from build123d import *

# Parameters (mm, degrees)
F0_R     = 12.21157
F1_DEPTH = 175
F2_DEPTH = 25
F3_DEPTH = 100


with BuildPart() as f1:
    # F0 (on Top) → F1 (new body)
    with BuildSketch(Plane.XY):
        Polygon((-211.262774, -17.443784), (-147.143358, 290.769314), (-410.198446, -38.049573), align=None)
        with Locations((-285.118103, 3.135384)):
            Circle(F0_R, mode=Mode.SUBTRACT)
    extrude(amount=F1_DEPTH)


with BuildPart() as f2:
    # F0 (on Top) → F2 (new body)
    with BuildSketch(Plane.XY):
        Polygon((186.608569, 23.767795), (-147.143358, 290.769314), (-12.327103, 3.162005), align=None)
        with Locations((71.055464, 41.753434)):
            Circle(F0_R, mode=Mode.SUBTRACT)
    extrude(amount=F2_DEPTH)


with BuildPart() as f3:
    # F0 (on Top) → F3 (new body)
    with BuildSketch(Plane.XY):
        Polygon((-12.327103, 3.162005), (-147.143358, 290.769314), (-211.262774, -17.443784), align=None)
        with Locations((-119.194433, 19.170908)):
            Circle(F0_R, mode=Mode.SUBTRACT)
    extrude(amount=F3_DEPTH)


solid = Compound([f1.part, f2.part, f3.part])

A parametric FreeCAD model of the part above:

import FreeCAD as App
import Part
import Sketcher
from FreeCAD import Vector
Q = App.Units.Quantity

doc = App.newDocument("Part")
body = doc.addObject("PartDesign::Body", "Body")

sketch1 = body.newObject("Sketcher::SketchObject", "Sketch")
sketch1.AttachmentSupport = (doc.getObject("XY_Plane"), [""])
sketch1.MapMode = "FlatFace"
sketch1.addGeometry(Part.LineSegment(Vector(-211.262774, -17.443784, 0), Vector(-147.143358, 290.769314, 0)), False)
sketch1.addGeometry(Part.LineSegment(Vector(-147.143358, 290.769314, 0), Vector(-410.198446, -38.049573, 0)), False)
sketch1.addGeometry(Part.LineSegment(Vector(-410.198446, -38.049573, 0), Vector(-211.262774, -17.443784, 0)), False)
sketch1.addGeometry(Part.Circle(Vector(-285.118103, 3.135384, 0), Vector(0, 0, 1), 12.21157), False)
sketch1.addConstraint(Sketcher.Constraint("Coincident", 0, 2, 1, 1))
sketch1.addConstraint(Sketcher.Constraint("Coincident", 1, 2, 2, 1))
sketch1.addConstraint(Sketcher.Constraint("Coincident", 2, 2, 0, 1))
sketch1.addConstraint(Sketcher.Constraint("Distance", 2, Q("200 mm")))
sketch1.addConstraint(Sketcher.Constraint("Diameter", 3, Q("24.42314 mm")))
sketch1.addConstraint(Sketcher.Constraint("DistanceY", 2, 2, 0, 2, Q("308.213098 mm")))
sketch1.addConstraint(Sketcher.Constraint("Distance", 0, Q("314.812028 mm")))
sketch1.addConstraint(Sketcher.Constraint("DistanceX", 0, 2, -1, 1, Q("147.143358 mm")))
sketch1.addConstraint(Sketcher.Constraint("DistanceY", 3, 3, 0, 2, Q("287.63393 mm")))
sketch1.addConstraint(Sketcher.Constraint("DistanceX", 3, 3, 2, 2, Q("73.855329 mm")))
sketch1.addConstraint(Sketcher.Constraint("DistanceX", 1, 2, 2, 2, Q("198.935672 mm")))
sketch1.addConstraint(Sketcher.Constraint("DistanceY", -1, 1, 3, 3, Q("3.135384 mm")))
pad1 = body.newObject("PartDesign::Pad", "Pad")
pad1.Profile = sketch1
pad1.Length = 175
body2 = doc.addObject("PartDesign::Body", "Body001")

sketch2 = body2.newObject("Sketcher::SketchObject", "Sketch001")
sketch2.AttachmentSupport = (doc.getObject("XY_Plane001"), [""])
sketch2.MapMode = "FlatFace"
sketch2.addGeometry(Part.LineSegment(Vector(186.608569, 23.767795, 0), Vector(-147.143358, 290.769314, 0)), False)
sketch2.addGeometry(Part.LineSegment(Vector(-147.143358, 290.769314, 0), Vector(-12.327103, 3.162005, 0)), False)
sketch2.addGeometry(Part.LineSegment(Vector(-12.327103, 3.162005, 0), Vector(186.608569, 23.767795, 0)), False)
sketch2.addGeometry(Part.Circle(Vector(71.055464, 41.753434, 0), Vector(0, 0, 1), 12.21157), False)
sketch2.addConstraint(Sketcher.Constraint("Coincident", 0, 2, 1, 1))
sketch2.addConstraint(Sketcher.Constraint("Coincident", 1, 2, 2, 1))
sketch2.addConstraint(Sketcher.Constraint("Coincident", 2, 2, 0, 1))
sketch2.addConstraint(Sketcher.Constraint("Distance", 2, Q("200 mm")))
sketch2.addConstraint(Sketcher.Constraint("Diameter", 3, Q("24.42314 mm")))
sketch2.addConstraint(Sketcher.Constraint("DistanceX", 0, 2, -1, 1, Q("147.143358 mm")))
sketch2.addConstraint(Sketcher.Constraint("DistanceX", -1, 1, 2, 2, Q("186.608569 mm")))
sketch2.addConstraint(Sketcher.Constraint("DistanceX", 0, 2, 3, 3, Q("218.198822 mm")))
sketch2.addConstraint(Sketcher.Constraint("DistanceY", 3, 3, 0, 2, Q("249.01588 mm")))
sketch2.addConstraint(Sketcher.Constraint("DistanceY", 1, 2, 3, 3, Q("38.591429 mm")))
sketch2.addConstraint(Sketcher.Constraint("DistanceY", 2, 2, 3, 3, Q("17.985639 mm")))
sketch2.addConstraint(Sketcher.Constraint("DistanceY", -1, 1, 3, 3, Q("41.753434 mm")))
pad2 = body2.newObject("PartDesign::Pad", "Pad001")
pad2.Profile = sketch2
pad2.Length = 25
body3 = doc.addObject("PartDesign::Body", "Body002")

sketch3 = body3.newObject("Sketcher::SketchObject", "Sketch002")
sketch3.AttachmentSupport = (doc.getObject("XY_Plane002"), [""])
sketch3.MapMode = "FlatFace"
sketch3.addGeometry(Part.LineSegment(Vector(-12.327103, 3.162005, 0), Vector(-147.143358, 290.769314, 0)), False)
sketch3.addGeometry(Part.LineSegment(Vector(-147.143358, 290.769314, 0), Vector(-211.262774, -17.443784, 0)), False)
sketch3.addGeometry(Part.LineSegment(Vector(-211.262774, -17.443784, 0), Vector(-12.327103, 3.162005, 0)), False)
sketch3.addGeometry(Part.Circle(Vector(-119.194433, 19.170908, 0), Vector(0, 0, 1), 12.21157), False)
sketch3.addConstraint(Sketcher.Constraint("Coincident", 0, 2, 1, 1))
sketch3.addConstraint(Sketcher.Constraint("Coincident", 1, 2, 2, 1))
sketch3.addConstraint(Sketcher.Constraint("Coincident", 2, 2, 0, 1))
sketch3.addConstraint(Sketcher.Constraint("Distance", 2, Q("199.999999 mm")))
sketch3.addConstraint(Sketcher.Constraint("Diameter", 3, Q("24.42314 mm")))
sketch3.addConstraint(Sketcher.Constraint("DistanceY", 1, 2, 0, 2, Q("308.213098 mm")))
sketch3.addConstraint(Sketcher.Constraint("Distance", 1, Q("314.812028 mm")))
sketch3.addConstraint(Sketcher.Constraint("DistanceY", -1, 1, 3, 3, Q("19.170908 mm")))
sketch3.addConstraint(Sketcher.Constraint("DistanceX", 0, 2, -1, 1, Q("147.143358 mm")))
sketch3.addConstraint(Sketcher.Constraint("DistanceX", 1, 2, 3, 3, Q("92.068341 mm")))
sketch3.addConstraint(Sketcher.Constraint("DistanceX", 3, 3, 2, 2, Q("106.86733 mm")))
sketch3.addConstraint(Sketcher.Constraint("DistanceY", -1, 1, 0, 2, Q("290.769314 mm")))
pad3 = body3.newObject("PartDesign::Pad", "Pad002")
pad3.Profile = sketch3
pad3.Length = 100

doc.recompute()
